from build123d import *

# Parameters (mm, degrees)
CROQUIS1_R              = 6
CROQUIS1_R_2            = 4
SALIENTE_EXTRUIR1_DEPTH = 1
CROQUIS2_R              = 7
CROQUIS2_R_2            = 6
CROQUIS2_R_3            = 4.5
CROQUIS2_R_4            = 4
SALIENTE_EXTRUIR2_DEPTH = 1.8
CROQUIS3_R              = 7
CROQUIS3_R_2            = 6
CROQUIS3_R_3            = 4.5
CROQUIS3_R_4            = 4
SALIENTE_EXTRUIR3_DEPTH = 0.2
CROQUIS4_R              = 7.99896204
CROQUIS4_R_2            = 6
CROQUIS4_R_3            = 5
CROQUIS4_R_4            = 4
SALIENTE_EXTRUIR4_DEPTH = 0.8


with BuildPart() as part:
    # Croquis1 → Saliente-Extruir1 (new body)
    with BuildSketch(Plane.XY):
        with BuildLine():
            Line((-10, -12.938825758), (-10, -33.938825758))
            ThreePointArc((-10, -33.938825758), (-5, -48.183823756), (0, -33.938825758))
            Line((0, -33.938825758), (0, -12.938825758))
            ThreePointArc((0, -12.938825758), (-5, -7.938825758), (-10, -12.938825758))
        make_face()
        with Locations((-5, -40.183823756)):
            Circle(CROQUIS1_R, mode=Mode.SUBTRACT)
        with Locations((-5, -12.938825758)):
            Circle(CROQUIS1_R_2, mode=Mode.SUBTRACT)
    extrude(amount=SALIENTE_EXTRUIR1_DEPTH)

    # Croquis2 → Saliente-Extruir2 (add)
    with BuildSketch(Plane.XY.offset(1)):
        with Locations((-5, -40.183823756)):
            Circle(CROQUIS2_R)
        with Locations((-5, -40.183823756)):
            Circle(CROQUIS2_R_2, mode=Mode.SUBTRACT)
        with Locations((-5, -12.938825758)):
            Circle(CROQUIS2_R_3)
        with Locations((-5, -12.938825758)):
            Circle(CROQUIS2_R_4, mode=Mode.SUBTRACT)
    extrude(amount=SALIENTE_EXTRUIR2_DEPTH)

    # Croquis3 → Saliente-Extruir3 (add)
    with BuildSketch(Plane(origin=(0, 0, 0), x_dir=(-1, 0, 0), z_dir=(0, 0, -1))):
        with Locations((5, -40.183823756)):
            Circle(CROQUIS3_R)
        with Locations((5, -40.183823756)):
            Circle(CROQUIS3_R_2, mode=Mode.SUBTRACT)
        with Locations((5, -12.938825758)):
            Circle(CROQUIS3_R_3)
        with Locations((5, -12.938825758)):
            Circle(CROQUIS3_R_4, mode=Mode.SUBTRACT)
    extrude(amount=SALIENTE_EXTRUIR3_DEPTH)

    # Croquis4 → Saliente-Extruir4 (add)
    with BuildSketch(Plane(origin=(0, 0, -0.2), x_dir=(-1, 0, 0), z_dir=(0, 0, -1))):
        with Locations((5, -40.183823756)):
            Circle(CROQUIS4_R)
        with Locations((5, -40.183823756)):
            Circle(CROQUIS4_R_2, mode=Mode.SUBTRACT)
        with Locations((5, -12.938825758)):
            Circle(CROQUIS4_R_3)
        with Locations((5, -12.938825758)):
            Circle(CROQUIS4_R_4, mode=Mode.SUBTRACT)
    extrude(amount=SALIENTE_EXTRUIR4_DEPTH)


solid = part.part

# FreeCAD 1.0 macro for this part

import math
import FreeCAD as App
import Part
import Sketcher

V = App.Vector
Q = App.Units.Quantity

doc = App.newDocument("Part")
body = doc.addObject("PartDesign::Body", "Body")

# Sketch on XY plane
sketch1 = body.newObject("Sketcher::SketchObject", "Sketch")
sketch1.AttachmentSupport = (doc.getObject("XY_Plane"), [""])
sketch1.MapMode = "FlatFace"
sketch1.addGeometry([
    Part.LineSegment(V(-10, -12.938826, 0), V(-10, -33.938826, 0)),  # 0
    Part.ArcOfCircle(Part.Circle(V(-5, -40.183824, 0), V(0, 0, 1), 8), math.radians(128.682187), math.radians(411.317813)),  # 1
    Part.LineSegment(V(0, -33.938826, 0), V(0, -12.938826, 0)),  # 2
    Part.ArcOfCircle(Part.Circle(V(-5, -12.938826, 0), V(0, 0, 1), 5), math.radians(0), math.radians(180)),  # 3
    Part.Circle(V(-5, -40.183824, 0), V(0, 0, 1), 6),  # 4
    Part.Circle(V(-5, -12.938826, 0), V(0, 0, 1), 4),  # 5
], False)
sketch1.addConstraint([
    Sketcher.Constraint("Coincident", 0, 2, 1, 1),
    Sketcher.Constraint("Coincident", 1, 2, 2, 1),
    Sketcher.Constraint("Tangent", 2, 2, 3, 1),
    Sketcher.Constraint("Tangent", 3, 2, 0, 1),
    Sketcher.Constraint("Vertical", 0),
    Sketcher.Constraint("Vertical", 2),
    Sketcher.Constraint("Coincident", 4, 3, 1, 3),
    Sketcher.Constraint("Coincident", 5, 3, 3, 3),
    Sketcher.Constraint("PointOnObject", 1, 2, -2),
    Sketcher.Constraint("Horizontal", 0, 2, 1, 2),
    Sketcher.Constraint("Diameter", 4, Q("12 mm")),
    Sketcher.Constraint("Diameter", 5, Q("8 mm")),
    Sketcher.Constraint("Radius", 1, Q("8 mm")),
    Sketcher.Constraint("Radius", 3, Q("5 mm")),
    Sketcher.Constraint("DistanceY", 0, 2, 0, 1, Q("21 mm")),
    Sketcher.Constraint("DistanceY", 1, 3, -1, 1, Q("40.183824 mm")),
])
pad1 = body.newObject("PartDesign::Pad", "Pad")
pad1.Profile = sketch1
pad1.Length = 1

# Sketch on XY plane
sketch2 = body.newObject("Sketcher::SketchObject", "Sketch001")
sketch2.AttachmentSupport = (doc.getObject("XY_Plane"), [""])
sketch2.MapMode = "FlatFace"
sketch2.AttachmentOffset = App.Placement(V(0, 0, 1), App.Rotation())
sketch2.addGeometry([
    Part.Circle(V(-5, -40.183824, 0), V(0, 0, 1), 7),
    Part.Circle(V(-5, -40.183824, 0), V(0, 0, 1), 6),
    Part.Circle(V(-5, -12.938826, 0), V(0, 0, 1), 4.5),
    Part.Circle(V(-5, -12.938826, 0), V(0, 0, 1), 4),
], False)
sketch2.addConstraint([
    Sketcher.Constraint("Coincident", 1, 3, 0, 3),
    Sketcher.Constraint("Coincident", 3, 3, 2, 3),
    Sketcher.Constraint("Vertical", 1, 3, 2, 3),
    Sketcher.Constraint("Diameter", 0, Q("14 mm")),
    Sketcher.Constraint("Diameter", 1, Q("12 mm")),
    Sketcher.Constraint("Diameter", 2, Q("9 mm")),
    Sketcher.Constraint("Diameter", 3, Q("8 mm")),
    Sketcher.Constraint("DistanceX", 0, 3, -1, 1, Q("5 mm")),
    Sketcher.Constraint("DistanceY", 0, 3, -1, 1, Q("40.183824 mm")),
    Sketcher.Constraint("DistanceY", 2, 3, -1, 1, Q("12.938826 mm")),
])
pad2 = body.newObject("PartDesign::Pad", "Pad001")
pad2.Profile = sketch2
pad2.Length = 1.8

# Sketch on XY plane
sketch3 = body.newObject("Sketcher::SketchObject", "Sketch002")
sketch3.AttachmentSupport = (doc.getObject("XY_Plane"), [""])
sketch3.MapMode = "FlatFace"
sketch3.addGeometry([
    Part.Circle(V(-5, -40.183824, 0), V(0, 0, 1), 7),
    Part.Circle(V(-5, -40.183824, 0), V(0, 0, 1), 6),
    Part.Circle(V(-5, -12.938826, 0), V(0, 0, 1), 4.5),
    Part.Circle(V(-5, -12.938826, 0), V(0, 0, 1), 4),
], False)
sketch3.addConstraint([
    Sketcher.Constraint("Coincident", 1, 3, 0, 3),
    Sketcher.Constraint("Coincident", 3, 3, 2, 3),
    Sketcher.Constraint("Vertical", 1, 3, 2, 3),
    Sketcher.Constraint("Diameter", 0, Q("14 mm")),
    Sketcher.Constraint("Diameter", 1, Q("12 mm")),
    Sketcher.Constraint("Diameter", 2, Q("9 mm")),
    Sketcher.Constraint("Diameter", 3, Q("8 mm")),
    Sketcher.Constraint("DistanceX", 0, 3, -1, 1, Q("5 mm")),
    Sketcher.Constraint("DistanceY", 0, 3, -1, 1, Q("40.183824 mm")),
    Sketcher.Constraint("DistanceY", 2, 3, -1, 1, Q("12.938826 mm")),
])
pad3 = body.newObject("PartDesign::Pad", "Pad002")
pad3.Profile = sketch3
pad3.Length = 0.2
pad3.Reversed = True

# Sketch on XY plane
sketch4 = body.newObject("Sketcher::SketchObject", "Sketch003")
sketch4.AttachmentSupport = (doc.getObject("XY_Plane"), [""])
sketch4.MapMode = "FlatFace"
sketch4.AttachmentOffset = App.Placement(V(0, 0, -0.2), App.Rotation())
sketch4.addGeometry([
    Part.Circle(V(-5, -40.183824, 0), V(0, 0, 1), 7.998962),
    Part.Circle(V(-5, -40.183824, 0), V(0, 0, 1), 6),
    Part.Circle(V(-5, -12.938826, 0), V(0, 0, 1), 5),
    Part.Circle(V(-5, -12.938826, 0), V(0, 0, 1), 4),
], False)
sketch4.addConstraint([
    Sketcher.Constraint("Coincident", 1, 3, 0, 3),
    Sketcher.Constraint("Coincident", 3, 3, 2, 3),
    Sketcher.Constraint("Vertical", 1, 3, 2, 3),
    Sketcher.Constraint("Diameter", 1, Q("12 mm")),
    Sketcher.Constraint("Diameter", 2, Q("10 mm")),
    Sketcher.Constraint("Diameter", 3, Q("8 mm")),
    Sketcher.Constraint("DistanceX", 0, 3, -1, 1, Q("5 mm")),
    Sketcher.Constraint("Diameter", 0, Q("15.997924 mm")),
    Sketcher.Constraint("DistanceY", 0, 3, -1, 1, Q("40.183824 mm")),
    Sketcher.Constraint("DistanceY", 2, 3, -1, 1, Q("12.938826 mm")),
])
pad4 = body.newObject("PartDesign::Pad", "Pad003")
pad4.Profile = sketch4
pad4.Length = 0.8
pad4.Reversed = True

doc.recompute()
